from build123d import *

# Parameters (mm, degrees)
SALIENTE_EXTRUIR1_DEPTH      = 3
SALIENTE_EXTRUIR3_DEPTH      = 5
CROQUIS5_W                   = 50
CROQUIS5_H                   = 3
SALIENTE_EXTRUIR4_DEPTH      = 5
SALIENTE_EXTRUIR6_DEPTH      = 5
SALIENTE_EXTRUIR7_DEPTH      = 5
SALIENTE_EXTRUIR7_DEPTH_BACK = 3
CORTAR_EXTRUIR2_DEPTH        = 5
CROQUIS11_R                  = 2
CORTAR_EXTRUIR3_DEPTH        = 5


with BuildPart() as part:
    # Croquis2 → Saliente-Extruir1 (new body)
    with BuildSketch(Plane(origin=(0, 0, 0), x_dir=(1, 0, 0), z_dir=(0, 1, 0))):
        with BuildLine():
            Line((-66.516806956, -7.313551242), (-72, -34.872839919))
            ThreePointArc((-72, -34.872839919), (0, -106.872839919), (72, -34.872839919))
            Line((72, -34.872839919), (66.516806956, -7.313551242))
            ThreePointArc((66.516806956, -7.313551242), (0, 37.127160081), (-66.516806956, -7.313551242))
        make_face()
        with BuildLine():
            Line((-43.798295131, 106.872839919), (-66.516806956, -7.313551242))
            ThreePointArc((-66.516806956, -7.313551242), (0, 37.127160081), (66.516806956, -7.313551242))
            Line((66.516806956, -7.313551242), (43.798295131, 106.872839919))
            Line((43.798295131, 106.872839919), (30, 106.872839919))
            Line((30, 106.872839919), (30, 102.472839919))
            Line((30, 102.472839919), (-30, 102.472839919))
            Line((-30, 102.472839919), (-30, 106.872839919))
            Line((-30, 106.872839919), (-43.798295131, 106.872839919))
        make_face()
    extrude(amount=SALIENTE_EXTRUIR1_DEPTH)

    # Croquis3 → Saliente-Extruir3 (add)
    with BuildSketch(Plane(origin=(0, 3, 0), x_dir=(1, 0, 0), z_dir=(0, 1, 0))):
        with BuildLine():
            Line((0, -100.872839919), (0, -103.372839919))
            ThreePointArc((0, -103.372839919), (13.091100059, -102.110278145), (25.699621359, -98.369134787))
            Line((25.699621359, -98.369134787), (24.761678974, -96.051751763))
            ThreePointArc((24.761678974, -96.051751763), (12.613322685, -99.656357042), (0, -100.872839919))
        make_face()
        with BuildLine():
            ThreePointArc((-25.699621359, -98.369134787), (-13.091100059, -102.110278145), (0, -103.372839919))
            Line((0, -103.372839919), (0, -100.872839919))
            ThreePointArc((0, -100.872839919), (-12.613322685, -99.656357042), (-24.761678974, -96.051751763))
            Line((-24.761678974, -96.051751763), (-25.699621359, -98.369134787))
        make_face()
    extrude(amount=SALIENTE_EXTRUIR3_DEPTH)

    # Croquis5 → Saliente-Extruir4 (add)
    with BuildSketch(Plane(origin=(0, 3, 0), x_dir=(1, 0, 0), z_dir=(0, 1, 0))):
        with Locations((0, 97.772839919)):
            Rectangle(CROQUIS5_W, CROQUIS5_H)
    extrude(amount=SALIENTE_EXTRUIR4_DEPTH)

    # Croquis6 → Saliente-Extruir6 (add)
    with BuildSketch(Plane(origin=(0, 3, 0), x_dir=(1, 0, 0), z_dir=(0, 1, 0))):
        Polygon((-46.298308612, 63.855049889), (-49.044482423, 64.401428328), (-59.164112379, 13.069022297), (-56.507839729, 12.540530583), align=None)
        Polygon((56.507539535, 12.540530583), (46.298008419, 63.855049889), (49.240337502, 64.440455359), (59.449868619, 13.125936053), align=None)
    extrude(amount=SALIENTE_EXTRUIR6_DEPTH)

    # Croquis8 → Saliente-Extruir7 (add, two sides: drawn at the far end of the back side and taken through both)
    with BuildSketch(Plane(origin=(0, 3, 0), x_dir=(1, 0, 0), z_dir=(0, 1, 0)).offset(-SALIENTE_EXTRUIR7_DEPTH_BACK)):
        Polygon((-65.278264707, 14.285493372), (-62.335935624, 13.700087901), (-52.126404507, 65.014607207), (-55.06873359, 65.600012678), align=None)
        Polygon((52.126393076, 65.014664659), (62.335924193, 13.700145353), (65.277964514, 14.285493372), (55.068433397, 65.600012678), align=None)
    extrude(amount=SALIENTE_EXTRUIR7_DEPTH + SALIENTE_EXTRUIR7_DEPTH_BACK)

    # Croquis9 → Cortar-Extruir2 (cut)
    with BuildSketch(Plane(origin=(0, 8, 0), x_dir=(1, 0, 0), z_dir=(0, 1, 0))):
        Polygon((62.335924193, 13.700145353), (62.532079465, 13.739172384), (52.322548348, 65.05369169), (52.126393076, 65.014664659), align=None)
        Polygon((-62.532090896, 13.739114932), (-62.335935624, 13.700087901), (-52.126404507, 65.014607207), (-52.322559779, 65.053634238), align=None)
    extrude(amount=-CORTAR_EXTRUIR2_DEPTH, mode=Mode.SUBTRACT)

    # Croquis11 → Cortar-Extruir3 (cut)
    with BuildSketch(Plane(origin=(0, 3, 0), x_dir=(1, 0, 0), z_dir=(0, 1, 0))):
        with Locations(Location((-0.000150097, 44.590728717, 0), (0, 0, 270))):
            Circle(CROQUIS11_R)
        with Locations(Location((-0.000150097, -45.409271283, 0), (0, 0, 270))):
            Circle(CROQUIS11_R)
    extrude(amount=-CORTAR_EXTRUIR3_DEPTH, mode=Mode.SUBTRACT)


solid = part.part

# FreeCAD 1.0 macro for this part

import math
import FreeCAD as App
import Part
import Sketcher

doc = App.newDocument("Part")
body = doc.addObject("PartDesign::Body", "Body")

sketch1 = body.newObject("Sketcher::SketchObject", "Sketch")
sketch1.AttachmentSupport = (doc.getObject("XZ_Plane"), [""])
sketch1.MapMode = "FlatFace"
sketch1.addGeometry([
    Part.LineSegment(App.Vector(-66.516807, 7.313551, 0), App.Vector(-72, 34.87284, 0)),
    Part.ArcOfCircle(Part.Circle(App.Vector(0, 34.87284, 0), App.Vector(0, 0, 1), 72), math.radians(0), math.radians(180)),
    Part.LineSegment(App.Vector(72, 34.87284, 0), App.Vector(66.516807, 7.313551, 0)),
    Part.LineSegment(App.Vector(66.516807, 7.313551, 0), App.Vector(43.798295, -106.87284, 0)),
    Part.LineSegment(App.Vector(43.798295, -106.87284, 0), App.Vector(30, -106.87284, 0)),
    Part.LineSegment(App.Vector(30, -106.87284, 0), App.Vector(30, -102.47284, 0)),
    Part.LineSegment(App.Vector(30, -102.47284, 0), App.Vector(-30, -102.47284, 0)),
    Part.LineSegment(App.Vector(-30, -102.47284, 0), App.Vector(-30, -106.87284, 0)),
    Part.LineSegment(App.Vector(-30, -106.87284, 0), App.Vector(-43.798295, -106.87284, 0)),
    Part.LineSegment(App.Vector(-43.798295, -106.87284, 0), App.Vector(-66.516807, 7.313551, 0)),
], False)
sketch1.addConstraint([
    Sketcher.Constraint("Coincident", 0, 2, 1, 2),
    Sketcher.Constraint("Coincident", 1, 1, 2, 1),
    Sketcher.Constraint("Coincident", 2, 2, 3, 1),
    Sketcher.Constraint("Coincident", 3, 2, 4, 1),
    Sketcher.Constraint("Coincident", 4, 2, 5, 1),
    Sketcher.Constraint("Coincident", 5, 2, 6, 1),
    Sketcher.Constraint("Coincident", 6, 2, 7, 1),
    Sketcher.Constraint("Coincident", 7, 2, 8, 1),
    Sketcher.Constraint("Coincident", 8, 2, 9, 1),
    Sketcher.Constraint("Coincident", 9, 2, 0, 1),
    Sketcher.Constraint("Horizontal", 4),
    Sketcher.Constraint("Vertical", 5),
    Sketcher.Constraint("Horizontal", 6),
    Sketcher.Constraint("Vertical", 7),
    Sketcher.Constraint("Horizontal", 8),
    Sketcher.Constraint("Symmetric", 0, 2, 1, 1, -2),
    Sketcher.Constraint("Symmetric", 4, 2, 7, 2, -2),
    Sketcher.Constraint("Symmetric", 2, 2, 9, 2, -2),
    Sketcher.Constraint("Parallel", 2, 3),
    Sketcher.Constraint("Parallel", 0, 9),
    Sketcher.Constraint("Horizontal", 1, 3, 0, 2),
    Sketcher.Constraint("Radius", 1, 72.0),
    Sketcher.Constraint("DistanceX", 6, 2, 6, 1, 60.0),
    Sketcher.Constraint("DistanceY", 5, 1, 5, 2, 4.4),
    Sketcher.Constraint("DistanceX", 4, 2, 4, 1, 13.798295),
    Sketcher.Constraint("DistanceY", -1, 1, 1, 3, 34.87284),
    Sketcher.Constraint("DistanceY", -1, 1, 2, 2, 7.313551),
    Sketcher.Constraint("DistanceY", 3, 2, -1, 1, 106.87284),
])
pad1 = body.newObject("PartDesign::Pad", "Pad")
pad1.Profile = sketch1
pad1.Length = 3
pad1.Reversed = True

sketch2 = body.newObject("Sketcher::SketchObject", "Sketch001")
sketch2.AttachmentSupport = (doc.getObject("XZ_Plane"), [""])
sketch2.MapMode = "FlatFace"
sketch2.AttachmentOffset = App.Placement(App.Vector(0, 0, -3), App.Rotation())
sketch2.addGeometry([
    Part.ArcOfCircle(Part.Circle(App.Vector(0, 34.87284, 0), App.Vector(0, 0, 1), 68.5), math.radians(67.96475), math.radians(90)),
    Part.LineSegment(App.Vector(25.699621, 98.369135, 0), App.Vector(24.761679, 96.051752, 0)),
    Part.ArcOfCircle(Part.Circle(App.Vector(0, 34.87284, 0), App.Vector(0, 0, 1), 66), math.radians(67.96475), math.radians(90)),
    Part.ArcOfCircle(Part.Circle(App.Vector(0, 34.87284, 0), App.Vector(0, 0, 1), 66), math.radians(90), math.radians(112.03525)),
    Part.LineSegment(App.Vector(-24.761679, 96.051752, 0), App.Vector(-25.699621, 98.369135, 0)),
    Part.ArcOfCircle(Part.Circle(App.Vector(0, 34.87284, 0), App.Vector(0, 0, 1), 68.5), math.radians(90), math.radians(112.03525)),
], False)
sketch2.addConstraint([
    Sketcher.Constraint("Coincident", 0, 1, 1, 1),
    Sketcher.Constraint("Coincident", 1, 2, 2, 1),
    Sketcher.Constraint("Tangent", 2, 2, 3, 1),
    Sketcher.Constraint("Coincident", 3, 2, 4, 1),
    Sketcher.Constraint("Coincident", 4, 2, 5, 2),
    Sketcher.Constraint("Tangent", 5, 1, 0, 2),
    Sketcher.Constraint("Coincident", 2, 3, 0, 3),
    Sketcher.Constraint("Equal", 2, 3),
    Sketcher.Constraint("Equal", 0, 5),
    Sketcher.Constraint("Symmetric", 1, 2, 3, 2, -2),
    Sketcher.Constraint("PointOnObject", 2, 2, -2),
    Sketcher.Constraint("PointOnObject", 5, 1, -2),
    Sketcher.Constraint("Horizontal", 0, 1, 4, 2),
    Sketcher.Constraint("Radius", 2, 66.0),
    Sketcher.Constraint("Radius", 0, 68.5),
    Sketcher.Constraint("DistanceX", 3, 2, 0, 1, 50.4613),
    Sketcher.Constraint("DistanceY", -1, 1, 0, 3, 34.87284),
    Sketcher.Constraint("DistanceX", -1, 1, 0, 1, 25.699621),
])
pad2 = body.newObject("PartDesign::Pad", "Pad001")
pad2.Profile = sketch2
pad2.Length = 5
pad2.Reversed = True

sketch3 = body.newObject("Sketcher::SketchObject", "Sketch002")
sketch3.AttachmentSupport = (doc.getObject("XZ_Plane"), [""])
sketch3.MapMode = "FlatFace"
sketch3.AttachmentOffset = App.Placement(App.Vector(0, 0, -3), App.Rotation())
sketch3.addGeometry([
    Part.LineSegment(App.Vector(-25, -99.27284, 0), App.Vector(-25, -96.27284, 0)),
    Part.LineSegment(App.Vector(-25, -96.27284, 0), App.Vector(25, -96.27284, 0)),
    Part.LineSegment(App.Vector(25, -96.27284, 0), App.Vector(25, -99.27284, 0)),
    Part.LineSegment(App.Vector(25, -99.27284, 0), App.Vector(-25, -99.27284, 0)),
], False)
sketch3.addConstraint([
    Sketcher.Constraint("Coincident", 0, 2, 1, 1),
    Sketcher.Constraint("Coincident", 1, 2, 2, 1),
    Sketcher.Constraint("Coincident", 2, 2, 3, 1),
    Sketcher.Constraint("Coincident", 3, 2, 0, 1),
    Sketcher.Constraint("Vertical", 0),
    Sketcher.Constraint("Horizontal", 1),
    Sketcher.Constraint("Vertical", 2),
    Sketcher.Constraint("Horizontal", 3),
    Sketcher.Constraint("DistanceX", 1, 1, 1, 2, 50.0),
    Sketcher.Constraint("DistanceY", 0, 1, 0, 2, 3.0),
    Sketcher.Constraint("DistanceX", 0, 2, -1, 1, 25.0),
    Sketcher.Constraint("DistanceY", 0, 2, -1, 1, 96.27284),
])
pad3 = body.newObject("PartDesign::Pad", "Pad002")
pad3.Profile = sketch3
pad3.Length = 5
pad3.Reversed = True

sketch4 = body.newObject("Sketcher::SketchObject", "Sketch003")
sketch4.AttachmentSupport = (doc.getObject("XZ_Plane"), [""])
sketch4.MapMode = "FlatFace"
sketch4.AttachmentOffset = App.Placement(App.Vector(0, 0, -3), App.Rotation())
sketch4.addGeometry([
    Part.LineSegment(App.Vector(-46.298309, -63.85505, 0), App.Vector(-49.044482, -64.401428, 0)),
    Part.LineSegment(App.Vector(-49.044482, -64.401428, 0), App.Vector(-59.164112, -13.069022, 0)),
    Part.LineSegment(App.Vector(-59.164112, -13.069022, 0), App.Vector(-56.50784, -12.540531, 0)),
    Part.LineSegment(App.Vector(-56.50784, -12.540531, 0), App.Vector(-46.298309, -63.85505, 0)),
    Part.LineSegment(App.Vector(46.298008, -63.85505, 0), App.Vector(56.50754, -12.540531, 0)),
    Part.LineSegment(App.Vector(56.50754, -12.540531, 0), App.Vector(59.449869, -13.125936, 0)),
    Part.LineSegment(App.Vector(59.449869, -13.125936, 0), App.Vector(49.240338, -64.440455, 0)),
    Part.LineSegment(App.Vector(49.240338, -64.440455, 0), App.Vector(46.298008, -63.85505, 0)),
], False)
sketch4.addConstraint([
    Sketcher.Constraint("Coincident", 0, 2, 1, 1),
    Sketcher.Constraint("Coincident", 1, 2, 2, 1),
    Sketcher.Constraint("Coincident", 2, 2, 3, 1),
    Sketcher.Constraint("Coincident", 3, 2, 0, 1),
    Sketcher.Constraint("Coincident", 4, 2, 5, 1),
    Sketcher.Constraint("Coincident", 5, 2, 6, 1),
    Sketcher.Constraint("Coincident", 6, 2, 7, 1),
    Sketcher.Constraint("Coincident", 7, 2, 4, 1),
    Sketcher.Constraint("Parallel", 0, 2),
    Sketcher.Constraint("Perpendicular", 2, 3),
    Sketcher.Constraint("Perpendicular", 4, 5),
    Sketcher.Constraint("Perpendicular", 5, 6),
    Sketcher.Constraint("Perpendicular", 6, 7),
    Sketcher.Constraint("Horizontal", 2, 2, 4, 2),
    Sketcher.Constraint("Horizontal", 3, 2, 7, 2),
    Sketcher.Constraint("Equal", 3, 4),
    Sketcher.Constraint("Distance", 5, 3.0),
    Sketcher.Constraint("Distance", 0, 2.8),
    Sketcher.Constraint("DistanceY", 0, 2, -1, 1, 64.401428),
    Sketcher.Constraint("DistanceX", 2, 2, -1, 1, 56.50784),
    Sketcher.Constraint("DistanceY", 2, 2, -1, 1, 12.540531),
    Sketcher.Constraint("DistanceX", 3, 2, -1, 1, 46.298309),
    Sketcher.Constraint("DistanceX", -1, 1, 4, 2, 56.50754),
    Sketcher.Constraint("DistanceX", 1, 2, 0, 2, 10.11963),
])
pad4 = body.newObject("PartDesign::Pad", "Pad003")
pad4.Profile = sketch4
pad4.Length = 5
pad4.Reversed = True

sketch5 = body.newObject("Sketcher::SketchObject", "Sketch004")
sketch5.AttachmentSupport = (doc.getObject("XZ_Plane"), [""])
sketch5.MapMode = "FlatFace"
sketch5.AttachmentOffset = App.Placement(App.Vector(0, 0, -3), App.Rotation())
sketch5.addGeometry([
    Part.LineSegment(App.Vector(-65.278265, -14.285493, 0), App.Vector(-62.335936, -13.700088, 0)),
    Part.LineSegment(App.Vector(-62.335936, -13.700088, 0), App.Vector(-52.126405, -65.014607, 0)),
    Part.LineSegment(App.Vector(-52.126405, -65.014607, 0), App.Vector(-55.068734, -65.600013, 0)),
    Part.LineSegment(App.Vector(-55.068734, -65.600013, 0), App.Vector(-65.278265, -14.285493, 0)),
    Part.LineSegment(App.Vector(52.126393, -65.014665, 0), App.Vector(62.335924, -13.700145, 0)),
    Part.LineSegment(App.Vector(62.335924, -13.700145, 0), App.Vector(65.277965, -14.285493, 0)),
    Part.LineSegment(App.Vector(65.277965, -14.285493, 0), App.Vector(55.068433, -65.600013, 0)),
    Part.LineSegment(App.Vector(55.068433, -65.600013, 0), App.Vector(52.126393, -65.014665, 0)),
], False)
sketch5.addConstraint([
    Sketcher.Constraint("Coincident", 0, 2, 1, 1),
    Sketcher.Constraint("Coincident", 1, 2, 2, 1),
    Sketcher.Constraint("Coincident", 2, 2, 3, 1),
    Sketcher.Constraint("Coincident", 3, 2, 0, 1),
    Sketcher.Constraint("Coincident", 4, 2, 5, 1),
    Sketcher.Constraint("Coincident", 5, 2, 6, 1),
    Sketcher.Constraint("Coincident", 6, 2, 7, 1),
    Sketcher.Constraint("Coincident", 7, 2, 4, 1),
    Sketcher.Constraint("Perpendicular", 0, 1),
    Sketcher.Constraint("Perpendicular", 1, 2),
    Sketcher.Constraint("Perpendicular", 2, 3),
    Sketcher.Constraint("Perpendicular", 4, 5),
    Sketcher.Constraint("Perpendicular", 5, 6),
    Sketcher.Constraint("Perpendicular", 6, 7),
    Sketcher.Constraint("Horizontal", 3, 2, 5, 2),
    Sketcher.Constraint("Horizontal", 2, 2, 6, 2),
    Sketcher.Constraint("Equal", 3, 4),
    Sketcher.Constraint("Distance", 0, 3.0),
    Sketcher.Constraint("DistanceX", 0, 2, 5, 2, 127.6139),
    Sketcher.Constraint("DistanceX", 2, 2, 5, 2, 120.346698),
    Sketcher.Constraint("DistanceY", 1, 2, 0, 2, 51.314519),
    Sketcher.Constraint("DistanceX", 0, 2, 4, 2, 124.67186),
    Sketcher.Constraint("DistanceX", 0, 2, -1, 1, 62.335936),
    Sketcher.Constraint("DistanceY", 0, 2, -1, 1, 13.700088),
])
pad5 = body.newObject("PartDesign::Pad", "Pad004")
pad5.Profile = sketch5
pad5.Type = "TwoLengths"
pad5.Length = 5
pad5.Length2 = 3
pad5.Reversed = True

sketch6 = body.newObject("Sketcher::SketchObject", "Sketch005")
sketch6.AttachmentSupport = (doc.getObject("XZ_Plane"), [""])
sketch6.MapMode = "FlatFace"
sketch6.AttachmentOffset = App.Placement(App.Vector(0, 0, -8), App.Rotation())
sketch6.addGeometry([
    Part.LineSegment(App.Vector(62.335924, -13.700145, 0), App.Vector(62.532079, -13.739172, 0)),
    Part.LineSegment(App.Vector(62.532079, -13.739172, 0), App.Vector(52.322548, -65.053692, 0)),
    Part.LineSegment(App.Vector(52.322548, -65.053692, 0), App.Vector(52.126393, -65.014665, 0)),
    Part.LineSegment(App.Vector(52.126393, -65.014665, 0), App.Vector(62.335924, -13.700145, 0)),
    Part.LineSegment(App.Vector(-62.532091, -13.739115, 0), App.Vector(-62.335936, -13.700088, 0)),
    Part.LineSegment(App.Vector(-62.335936, -13.700088, 0), App.Vector(-52.126405, -65.014607, 0)),
    Part.LineSegment(App.Vector(-52.126405, -65.014607, 0), App.Vector(-52.32256, -65.053634, 0)),
    Part.LineSegment(App.Vector(-52.32256, -65.053634, 0), App.Vector(-62.532091, -13.739115, 0)),
], False)
sketch6.addConstraint([
    Sketcher.Constraint("Coincident", 0, 2, 1, 1),
    Sketcher.Constraint("Coincident", 1, 2, 2, 1),
    Sketcher.Constraint("Coincident", 2, 2, 3, 1),
    Sketcher.Constraint("Coincident", 3, 2, 0, 1),
    Sketcher.Constraint("Coincident", 4, 2, 5, 1),
    Sketcher.Constraint("Coincident", 5, 2, 6, 1),
    Sketcher.Constraint("Coincident", 6, 2, 7, 1),
    Sketcher.Constraint("Coincident", 7, 2, 4, 1),
    Sketcher.Constraint("Perpendicular", 0, 1),
    Sketcher.Constraint("Perpendicular", 1, 2),
    Sketcher.Constraint("Perpendicular", 2, 3),
    Sketcher.Constraint("Perpendicular", 4, 5),
    Sketcher.Constraint("Perpendicular", 5, 6),
    Sketcher.Constraint("Perpendicular", 6, 7),
    Sketcher.Constraint("Equal", 2, 4),
    Sketcher.Constraint("Equal", 3, 5),
    Sketcher.Constraint("Distance", 0, 0.2),
    Sketcher.Constraint("DistanceX", -1, 1, 0, 2, 62.532079),
    Sketcher.Constraint("DistanceX", -1, 1, 1, 2, 52.322548),
    Sketcher.Constraint("DistanceY", 1, 2, -1, 1, 65.053692),
    Sketcher.Constraint("DistanceX", 6, 2, -1, 1, 52.32256),
    Sketcher.Constraint("DistanceX", 7, 2, -1, 1, 62.532091),
    Sketcher.Constraint("DistanceY", 1, 2, 0, 2, 51.314519),
    Sketcher.Constraint("DistanceY", 5, 2, 3, 2, 51.314462),
])
pocket1 = body.newObject("PartDesign::Pocket", "Pocket")
pocket1.Profile = sketch6
pocket1.Length = 5
pocket1.Reversed = True

sketch7 = body.newObject("Sketcher::SketchObject", "Sketch006")
sketch7.AttachmentSupport = (doc.getObject("XZ_Plane"), [""])
sketch7.MapMode = "FlatFace"
sketch7.AttachmentOffset = App.Placement(App.Vector(0, 0, -3), App.Rotation())
sketch7.addGeometry([
    Part.Circle(App.Vector(-0.00015, -44.590729, 0), App.Vector(0, 0, 1), 2),
    Part.Circle(App.Vector(-0.00015, 45.409271, 0), App.Vector(0, 0, 1), 2),
], False)
sketch7.addConstraint([
    Sketcher.Constraint("Equal", 0, 1),
    Sketcher.Constraint("Vertical", 0, 3, 1, 3),
    Sketcher.Constraint("Diameter", 0, 4.0),
    Sketcher.Constraint("DistanceY", 0, 3, 1, 3, 90.0),
    Sketcher.Constraint("DistanceX", 0, 3, -1, 1, 0.00015),
    Sketcher.Constraint("DistanceY", 0, 3, -1, 1, 44.590729),
])
pocket2 = body.newObject("PartDesign::Pocket", "Pocket001")
pocket2.Profile = sketch7
pocket2.Length = 5
pocket2.Reversed = True

doc.recompute()
